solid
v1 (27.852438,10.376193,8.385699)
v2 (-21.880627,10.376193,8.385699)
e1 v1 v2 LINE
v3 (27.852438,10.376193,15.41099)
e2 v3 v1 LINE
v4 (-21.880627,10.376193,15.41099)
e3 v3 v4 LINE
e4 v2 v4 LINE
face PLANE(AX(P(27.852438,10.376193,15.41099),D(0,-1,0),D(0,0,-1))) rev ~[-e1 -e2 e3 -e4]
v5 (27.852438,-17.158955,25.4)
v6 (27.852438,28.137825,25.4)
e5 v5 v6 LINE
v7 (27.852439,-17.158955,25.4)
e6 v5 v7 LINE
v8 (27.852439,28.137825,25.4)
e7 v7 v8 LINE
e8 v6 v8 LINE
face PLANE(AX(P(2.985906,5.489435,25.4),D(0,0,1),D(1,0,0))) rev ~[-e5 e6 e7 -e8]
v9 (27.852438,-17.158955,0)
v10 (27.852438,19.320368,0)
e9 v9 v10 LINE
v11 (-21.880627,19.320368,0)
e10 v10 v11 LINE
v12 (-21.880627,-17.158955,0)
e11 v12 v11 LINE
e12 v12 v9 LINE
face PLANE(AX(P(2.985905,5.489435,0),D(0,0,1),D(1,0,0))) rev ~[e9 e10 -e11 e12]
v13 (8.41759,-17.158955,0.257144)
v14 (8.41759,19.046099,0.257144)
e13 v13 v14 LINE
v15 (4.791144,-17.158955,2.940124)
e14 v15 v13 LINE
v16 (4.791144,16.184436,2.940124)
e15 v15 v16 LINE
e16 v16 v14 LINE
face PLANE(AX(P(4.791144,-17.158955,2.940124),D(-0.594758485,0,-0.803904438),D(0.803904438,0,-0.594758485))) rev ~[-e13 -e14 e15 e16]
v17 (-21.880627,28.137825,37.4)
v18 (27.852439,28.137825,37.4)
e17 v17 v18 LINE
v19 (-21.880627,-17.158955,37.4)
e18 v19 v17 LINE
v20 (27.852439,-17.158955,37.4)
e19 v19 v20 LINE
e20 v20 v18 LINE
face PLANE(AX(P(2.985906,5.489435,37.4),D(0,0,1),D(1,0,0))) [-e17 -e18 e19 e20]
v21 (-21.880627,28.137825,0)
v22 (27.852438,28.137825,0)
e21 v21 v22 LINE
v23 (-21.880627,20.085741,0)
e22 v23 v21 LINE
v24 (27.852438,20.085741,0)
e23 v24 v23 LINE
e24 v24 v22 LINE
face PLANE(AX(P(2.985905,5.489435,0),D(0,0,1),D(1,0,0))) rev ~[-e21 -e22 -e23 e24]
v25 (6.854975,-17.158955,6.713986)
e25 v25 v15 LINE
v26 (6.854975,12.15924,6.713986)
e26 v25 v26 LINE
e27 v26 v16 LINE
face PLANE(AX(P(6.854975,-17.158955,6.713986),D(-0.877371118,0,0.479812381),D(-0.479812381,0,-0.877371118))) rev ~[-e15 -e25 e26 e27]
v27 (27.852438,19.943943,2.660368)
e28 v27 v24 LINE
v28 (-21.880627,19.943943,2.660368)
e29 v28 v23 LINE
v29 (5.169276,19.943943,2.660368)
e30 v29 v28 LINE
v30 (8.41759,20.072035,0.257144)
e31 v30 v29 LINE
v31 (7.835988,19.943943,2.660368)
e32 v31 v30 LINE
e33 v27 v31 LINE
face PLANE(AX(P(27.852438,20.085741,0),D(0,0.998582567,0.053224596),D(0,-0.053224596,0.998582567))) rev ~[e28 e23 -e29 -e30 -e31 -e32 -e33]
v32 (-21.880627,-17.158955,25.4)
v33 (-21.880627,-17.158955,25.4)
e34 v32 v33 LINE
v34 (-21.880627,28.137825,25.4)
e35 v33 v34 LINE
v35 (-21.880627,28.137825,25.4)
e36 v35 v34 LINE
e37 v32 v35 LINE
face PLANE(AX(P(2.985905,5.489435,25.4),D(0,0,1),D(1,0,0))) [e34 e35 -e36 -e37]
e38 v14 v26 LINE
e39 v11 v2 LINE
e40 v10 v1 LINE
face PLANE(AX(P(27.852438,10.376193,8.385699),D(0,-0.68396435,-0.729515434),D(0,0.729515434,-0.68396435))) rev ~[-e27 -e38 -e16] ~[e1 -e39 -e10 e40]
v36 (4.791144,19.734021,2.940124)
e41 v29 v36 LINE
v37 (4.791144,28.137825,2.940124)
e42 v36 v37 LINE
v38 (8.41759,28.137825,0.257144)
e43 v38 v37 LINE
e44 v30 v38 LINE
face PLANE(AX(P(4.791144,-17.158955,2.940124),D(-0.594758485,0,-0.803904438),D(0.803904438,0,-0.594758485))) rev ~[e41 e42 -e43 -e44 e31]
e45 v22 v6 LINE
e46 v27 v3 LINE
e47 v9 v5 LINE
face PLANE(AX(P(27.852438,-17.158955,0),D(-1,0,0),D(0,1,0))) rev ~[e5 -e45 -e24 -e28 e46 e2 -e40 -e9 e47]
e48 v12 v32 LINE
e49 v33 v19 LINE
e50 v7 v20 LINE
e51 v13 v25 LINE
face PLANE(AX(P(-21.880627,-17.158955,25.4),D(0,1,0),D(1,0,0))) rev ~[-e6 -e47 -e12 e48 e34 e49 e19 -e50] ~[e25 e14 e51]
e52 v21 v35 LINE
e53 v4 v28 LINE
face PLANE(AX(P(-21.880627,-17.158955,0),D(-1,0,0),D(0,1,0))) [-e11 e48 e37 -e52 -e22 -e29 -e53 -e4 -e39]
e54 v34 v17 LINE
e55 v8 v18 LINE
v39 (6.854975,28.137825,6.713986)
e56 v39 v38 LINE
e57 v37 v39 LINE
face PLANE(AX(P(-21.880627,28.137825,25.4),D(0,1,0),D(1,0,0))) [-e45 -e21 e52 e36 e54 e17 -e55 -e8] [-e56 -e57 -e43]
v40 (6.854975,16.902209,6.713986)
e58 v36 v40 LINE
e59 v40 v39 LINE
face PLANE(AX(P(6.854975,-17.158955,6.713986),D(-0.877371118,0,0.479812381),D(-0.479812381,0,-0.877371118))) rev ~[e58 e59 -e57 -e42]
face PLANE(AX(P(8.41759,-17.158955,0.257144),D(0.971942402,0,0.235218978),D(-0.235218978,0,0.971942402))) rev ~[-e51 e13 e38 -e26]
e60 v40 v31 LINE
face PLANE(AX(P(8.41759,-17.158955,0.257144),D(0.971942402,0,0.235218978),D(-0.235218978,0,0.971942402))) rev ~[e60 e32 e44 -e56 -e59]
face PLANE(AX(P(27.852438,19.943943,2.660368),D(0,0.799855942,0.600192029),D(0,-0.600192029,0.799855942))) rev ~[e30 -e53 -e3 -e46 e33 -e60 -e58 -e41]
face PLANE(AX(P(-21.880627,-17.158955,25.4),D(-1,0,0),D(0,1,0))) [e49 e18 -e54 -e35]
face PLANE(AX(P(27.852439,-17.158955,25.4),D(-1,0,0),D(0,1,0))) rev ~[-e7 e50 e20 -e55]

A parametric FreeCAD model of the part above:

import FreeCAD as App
import Part
import Sketcher

doc = App.newDocument("Part")
body = doc.addObject("PartDesign::Body", "Body")

# Sketch on XY plane
sketch1 = doc.addObject("Sketcher::SketchObject", "Sketch")
body.addObject(sketch1)
sketch1.AttachmentSupport = (doc.XY_Plane, [""])
sketch1.MapMode = "FlatFace"
sketch1.addGeometry([
    Part.LineSegment(App.Vector(-21.880627, 28.137825, 0), App.Vector(-21.880627, -17.158955, 0)),
    Part.LineSegment(App.Vector(-21.880627, -17.158955, 0), App.Vector(27.852438, -17.158955, 0)),
    Part.LineSegment(App.Vector(27.852438, -17.158955, 0), App.Vector(27.852438, 28.137825, 0)),
    Part.LineSegment(App.Vector(27.852438, 28.137825, 0), App.Vector(-21.880627, 28.137825, 0)),
], False)
sketch1.addConstraint([
    Sketcher.Constraint("Coincident", 0, 2, 1, 1),
    Sketcher.Constraint("Coincident", 1, 2, 2, 1),
    Sketcher.Constraint("Coincident", 2, 2, 3, 1),
    Sketcher.Constraint("Coincident", 3, 2, 0, 1),
    Sketcher.Constraint("Vertical", 0),
    Sketcher.Constraint("Horizontal", 1),
    Sketcher.Constraint("Vertical", 2),
    Sketcher.Constraint("Horizontal", 3),
    Sketcher.Constraint("DistanceY", 0, 2, 0, 1, 45.29678),
    Sketcher.Constraint("DistanceX", 1, 1, 1, 2, 49.733065),
    Sketcher.Constraint("DistanceX", 0, 2, -1, 1, 21.880627),
    Sketcher.Constraint("DistanceY", 0, 2, -1, 1, 17.158955),
])
pad1 = doc.addObject("PartDesign::Pad", "Pad")
body.addObject(pad1)
pad1.Profile = sketch1
pad1.Length = 25.4

# Sketch on XY plane
sketch2 = doc.addObject("Sketcher::SketchObject", "Sketch001")
body.addObject(sketch2)
sketch2.AttachmentSupport = (doc.XY_Plane, [""])
sketch2.MapMode = "FlatFace"
sketch2.AttachmentOffset = App.Placement(App.Vector(0, 0, 25.4), App.Rotation())
sketch2.addGeometry([
    Part.LineSegment(App.Vector(-21.880627, 28.137825, 0), App.Vector(-21.880627, -17.158955, 0)),
    Part.LineSegment(App.Vector(-21.880627, -17.158955, 0), App.Vector(27.852439, -17.158955, 0)),
    Part.LineSegment(App.Vector(27.852439, -17.158955, 0), App.Vector(27.852439, 28.137825, 0)),
    Part.LineSegment(App.Vector(27.852439, 28.137825, 0), App.Vector(-21.880627, 28.137825, 0)),
], False)
sketch2.addConstraint([
    Sketcher.Constraint("Coincident", 0, 2, 1, 1),
    Sketcher.Constraint("Coincident", 1, 2, 2, 1),
    Sketcher.Constraint("Coincident", 2, 2, 3, 1),
    Sketcher.Constraint("Coincident", 3, 2, 0, 1),
    Sketcher.Constraint("Vertical", 0),
    Sketcher.Constraint("Horizontal", 1),
    Sketcher.Constraint("Vertical", 2),
    Sketcher.Constraint("Horizontal", 3),
    Sketcher.Constraint("DistanceY", 0, 2, 0, 1, 45.29678),
    Sketcher.Constraint("DistanceX", 1, 1, 1, 2, 49.733066),
    Sketcher.Constraint("DistanceX", -1, 1, 1, 2, 27.852439),
    Sketcher.Constraint("DistanceY", 0, 2, -1, 1, 17.158955),
])
pad2 = doc.addObject("PartDesign::Pad", "Pad001")
body.addObject(pad2)
pad2.Profile = sketch2
pad2.Length = 12

# Sketch on YZ plane
sketch3 = doc.addObject("Sketcher::SketchObject", "Sketch002")
body.addObject(sketch3)
sketch3.AttachmentSupport = (doc.YZ_Plane, [""])
sketch3.MapMode = "FlatFace"
sketch3.AttachmentOffset = App.Placement(App.Vector(0, 0, 27.852438), App.Rotation())
sketch3.addGeometry([
    Part.LineSegment(App.Vector(10.376193, 15.41099, 0), App.Vector(10.376193, 8.385699, 0)),  # 0
    Part.LineSegment(App.Vector(10.376193, 8.385699, 0), App.Vector(19.320368, 0, 0)),  # 1
    Part.LineSegment(App.Vector(19.320368, 0, 0), App.Vector(20.085741, 0, 0)),  # 2
    Part.LineSegment(App.Vector(20.085741, 0, 0), App.Vector(19.943943, 2.660368, 0)),  # 3
    Part.LineSegment(App.Vector(19.943943, 2.660368, 0), App.Vector(10.376193, 15.41099, 0)),  # 4
], False)
sketch3.addConstraint([
    Sketcher.Constraint("Coincident", 0, 2, 1, 1),
    Sketcher.Constraint("Coincident", 1, 2, 2, 1),
    Sketcher.Constraint("Coincident", 2, 2, 3, 1),
    Sketcher.Constraint("Coincident", 3, 2, 4, 1),
    Sketcher.Constraint("Coincident", 4, 2, 0, 1),
    Sketcher.Constraint("Vertical", 0),
    Sketcher.Constraint("Horizontal", 2),
    Sketcher.Constraint("PointOnObject", 1, 2, -1),
    Sketcher.Constraint("DistanceY", 0, 2, 0, 1, 7.025291),
    Sketcher.Constraint("DistanceY", -1, 1, 0, 2, 8.385699),
    Sketcher.Constraint("Distance", 4, 15.941148),
    Sketcher.Constraint("DistanceX", 2, 1, 2, 2, 0.765373),
    Sketcher.Constraint("DistanceX", -1, 1, 2, 2, 20.085741),
    Sketcher.Constraint("DistanceY", -1, 1, 3, 2, 2.660368),
    Sketcher.Constraint("Distance", 1, 12.260433),
])
pocket1 = doc.addObject("PartDesign::Pocket", "Pocket")
body.addObject(pocket1)
pocket1.Profile = sketch3
pocket1.Type = "ThroughAll"

# Sketch on XZ plane
sketch4 = doc.addObject("Sketcher::SketchObject", "Sketch003")
body.addObject(sketch4)
sketch4.AttachmentSupport = (doc.XZ_Plane, [""])
sketch4.MapMode = "FlatFace"
sketch4.AttachmentOffset = App.Placement(App.Vector(0, 0, 17.158955), App.Rotation())
sketch4.addGeometry([
    Part.LineSegment(App.Vector(6.854975, 6.713986, 0), App.Vector(4.791144, 2.940124, 0)),
    Part.LineSegment(App.Vector(4.791144, 2.940124, 0), App.Vector(8.41759, 0.257144, 0)),
    Part.LineSegment(App.Vector(8.41759, 0.257144, 0), App.Vector(6.854975, 6.713986, 0)),
], False)
sketch4.addConstraint([
    Sketcher.Constraint("Coincident", 0, 2, 1, 1),
    Sketcher.Constraint("Coincident", 1, 2, 2, 1),
    Sketcher.Constraint("Coincident", 2, 2, 0, 1),
    Sketcher.Constraint("Distance", 0, 4.301329),
    Sketcher.Constraint("Distance", 1, 4.511041),
    Sketcher.Constraint("DistanceX", -1, 1, 1, 2, 8.41759),
    Sketcher.Constraint("DistanceY", 1, 2, 0, 2, 2.68298),
    Sketcher.Constraint("DistanceX", 0, 2, 2, 2, 2.063831),
    Sketcher.Constraint("DistanceY", -1, 1, 0, 2, 2.940124),
])
pocket2 = doc.addObject("PartDesign::Pocket", "Pocket001")
body.addObject(pocket2)
pocket2.Profile = sketch4
pocket2.Type = "ThroughAll"

doc.recompute()
